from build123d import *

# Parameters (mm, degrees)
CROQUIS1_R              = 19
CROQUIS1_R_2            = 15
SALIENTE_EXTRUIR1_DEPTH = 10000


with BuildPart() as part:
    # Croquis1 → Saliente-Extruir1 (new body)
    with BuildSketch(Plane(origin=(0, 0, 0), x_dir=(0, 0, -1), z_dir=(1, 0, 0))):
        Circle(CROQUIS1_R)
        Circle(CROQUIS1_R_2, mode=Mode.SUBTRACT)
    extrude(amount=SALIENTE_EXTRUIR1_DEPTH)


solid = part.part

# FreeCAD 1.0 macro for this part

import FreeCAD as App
import Part
import Sketcher

doc = App.newDocument("Part")
body = doc.addObject("PartDesign::Body", "Body")

sketch1 = body.newObject("Sketcher::SketchObject", "Sketch")
sketch1.AttachmentSupport = (doc.getObject("YZ_Plane"), [""])
sketch1.MapMode = "FlatFace"
sketch1.addGeometry(Part.Circle(App.Vector(0, 0, 0), App.Vector(0, 0, 1), 19), False)
sketch1.addGeometry(Part.Circle(App.Vector(0, 0, 0), App.Vector(0, 0, 1), 15), False)
sketch1.addConstraint(Sketcher.Constraint("Coincident", 0, 3, -1, 1))
sketch1.addConstraint(Sketcher.Constraint("Coincident", 1, 3, -1, 1))
sketch1.addConstraint(Sketcher.Constraint("Diameter", 0, 38.0))
sketch1.addConstraint(Sketcher.Constraint("Diameter", 1, 30.0))
pad1 = body.newObject("PartDesign::Pad", "Pad")
pad1.Profile = sketch1
pad1.Length = 10000

doc.recompute()
